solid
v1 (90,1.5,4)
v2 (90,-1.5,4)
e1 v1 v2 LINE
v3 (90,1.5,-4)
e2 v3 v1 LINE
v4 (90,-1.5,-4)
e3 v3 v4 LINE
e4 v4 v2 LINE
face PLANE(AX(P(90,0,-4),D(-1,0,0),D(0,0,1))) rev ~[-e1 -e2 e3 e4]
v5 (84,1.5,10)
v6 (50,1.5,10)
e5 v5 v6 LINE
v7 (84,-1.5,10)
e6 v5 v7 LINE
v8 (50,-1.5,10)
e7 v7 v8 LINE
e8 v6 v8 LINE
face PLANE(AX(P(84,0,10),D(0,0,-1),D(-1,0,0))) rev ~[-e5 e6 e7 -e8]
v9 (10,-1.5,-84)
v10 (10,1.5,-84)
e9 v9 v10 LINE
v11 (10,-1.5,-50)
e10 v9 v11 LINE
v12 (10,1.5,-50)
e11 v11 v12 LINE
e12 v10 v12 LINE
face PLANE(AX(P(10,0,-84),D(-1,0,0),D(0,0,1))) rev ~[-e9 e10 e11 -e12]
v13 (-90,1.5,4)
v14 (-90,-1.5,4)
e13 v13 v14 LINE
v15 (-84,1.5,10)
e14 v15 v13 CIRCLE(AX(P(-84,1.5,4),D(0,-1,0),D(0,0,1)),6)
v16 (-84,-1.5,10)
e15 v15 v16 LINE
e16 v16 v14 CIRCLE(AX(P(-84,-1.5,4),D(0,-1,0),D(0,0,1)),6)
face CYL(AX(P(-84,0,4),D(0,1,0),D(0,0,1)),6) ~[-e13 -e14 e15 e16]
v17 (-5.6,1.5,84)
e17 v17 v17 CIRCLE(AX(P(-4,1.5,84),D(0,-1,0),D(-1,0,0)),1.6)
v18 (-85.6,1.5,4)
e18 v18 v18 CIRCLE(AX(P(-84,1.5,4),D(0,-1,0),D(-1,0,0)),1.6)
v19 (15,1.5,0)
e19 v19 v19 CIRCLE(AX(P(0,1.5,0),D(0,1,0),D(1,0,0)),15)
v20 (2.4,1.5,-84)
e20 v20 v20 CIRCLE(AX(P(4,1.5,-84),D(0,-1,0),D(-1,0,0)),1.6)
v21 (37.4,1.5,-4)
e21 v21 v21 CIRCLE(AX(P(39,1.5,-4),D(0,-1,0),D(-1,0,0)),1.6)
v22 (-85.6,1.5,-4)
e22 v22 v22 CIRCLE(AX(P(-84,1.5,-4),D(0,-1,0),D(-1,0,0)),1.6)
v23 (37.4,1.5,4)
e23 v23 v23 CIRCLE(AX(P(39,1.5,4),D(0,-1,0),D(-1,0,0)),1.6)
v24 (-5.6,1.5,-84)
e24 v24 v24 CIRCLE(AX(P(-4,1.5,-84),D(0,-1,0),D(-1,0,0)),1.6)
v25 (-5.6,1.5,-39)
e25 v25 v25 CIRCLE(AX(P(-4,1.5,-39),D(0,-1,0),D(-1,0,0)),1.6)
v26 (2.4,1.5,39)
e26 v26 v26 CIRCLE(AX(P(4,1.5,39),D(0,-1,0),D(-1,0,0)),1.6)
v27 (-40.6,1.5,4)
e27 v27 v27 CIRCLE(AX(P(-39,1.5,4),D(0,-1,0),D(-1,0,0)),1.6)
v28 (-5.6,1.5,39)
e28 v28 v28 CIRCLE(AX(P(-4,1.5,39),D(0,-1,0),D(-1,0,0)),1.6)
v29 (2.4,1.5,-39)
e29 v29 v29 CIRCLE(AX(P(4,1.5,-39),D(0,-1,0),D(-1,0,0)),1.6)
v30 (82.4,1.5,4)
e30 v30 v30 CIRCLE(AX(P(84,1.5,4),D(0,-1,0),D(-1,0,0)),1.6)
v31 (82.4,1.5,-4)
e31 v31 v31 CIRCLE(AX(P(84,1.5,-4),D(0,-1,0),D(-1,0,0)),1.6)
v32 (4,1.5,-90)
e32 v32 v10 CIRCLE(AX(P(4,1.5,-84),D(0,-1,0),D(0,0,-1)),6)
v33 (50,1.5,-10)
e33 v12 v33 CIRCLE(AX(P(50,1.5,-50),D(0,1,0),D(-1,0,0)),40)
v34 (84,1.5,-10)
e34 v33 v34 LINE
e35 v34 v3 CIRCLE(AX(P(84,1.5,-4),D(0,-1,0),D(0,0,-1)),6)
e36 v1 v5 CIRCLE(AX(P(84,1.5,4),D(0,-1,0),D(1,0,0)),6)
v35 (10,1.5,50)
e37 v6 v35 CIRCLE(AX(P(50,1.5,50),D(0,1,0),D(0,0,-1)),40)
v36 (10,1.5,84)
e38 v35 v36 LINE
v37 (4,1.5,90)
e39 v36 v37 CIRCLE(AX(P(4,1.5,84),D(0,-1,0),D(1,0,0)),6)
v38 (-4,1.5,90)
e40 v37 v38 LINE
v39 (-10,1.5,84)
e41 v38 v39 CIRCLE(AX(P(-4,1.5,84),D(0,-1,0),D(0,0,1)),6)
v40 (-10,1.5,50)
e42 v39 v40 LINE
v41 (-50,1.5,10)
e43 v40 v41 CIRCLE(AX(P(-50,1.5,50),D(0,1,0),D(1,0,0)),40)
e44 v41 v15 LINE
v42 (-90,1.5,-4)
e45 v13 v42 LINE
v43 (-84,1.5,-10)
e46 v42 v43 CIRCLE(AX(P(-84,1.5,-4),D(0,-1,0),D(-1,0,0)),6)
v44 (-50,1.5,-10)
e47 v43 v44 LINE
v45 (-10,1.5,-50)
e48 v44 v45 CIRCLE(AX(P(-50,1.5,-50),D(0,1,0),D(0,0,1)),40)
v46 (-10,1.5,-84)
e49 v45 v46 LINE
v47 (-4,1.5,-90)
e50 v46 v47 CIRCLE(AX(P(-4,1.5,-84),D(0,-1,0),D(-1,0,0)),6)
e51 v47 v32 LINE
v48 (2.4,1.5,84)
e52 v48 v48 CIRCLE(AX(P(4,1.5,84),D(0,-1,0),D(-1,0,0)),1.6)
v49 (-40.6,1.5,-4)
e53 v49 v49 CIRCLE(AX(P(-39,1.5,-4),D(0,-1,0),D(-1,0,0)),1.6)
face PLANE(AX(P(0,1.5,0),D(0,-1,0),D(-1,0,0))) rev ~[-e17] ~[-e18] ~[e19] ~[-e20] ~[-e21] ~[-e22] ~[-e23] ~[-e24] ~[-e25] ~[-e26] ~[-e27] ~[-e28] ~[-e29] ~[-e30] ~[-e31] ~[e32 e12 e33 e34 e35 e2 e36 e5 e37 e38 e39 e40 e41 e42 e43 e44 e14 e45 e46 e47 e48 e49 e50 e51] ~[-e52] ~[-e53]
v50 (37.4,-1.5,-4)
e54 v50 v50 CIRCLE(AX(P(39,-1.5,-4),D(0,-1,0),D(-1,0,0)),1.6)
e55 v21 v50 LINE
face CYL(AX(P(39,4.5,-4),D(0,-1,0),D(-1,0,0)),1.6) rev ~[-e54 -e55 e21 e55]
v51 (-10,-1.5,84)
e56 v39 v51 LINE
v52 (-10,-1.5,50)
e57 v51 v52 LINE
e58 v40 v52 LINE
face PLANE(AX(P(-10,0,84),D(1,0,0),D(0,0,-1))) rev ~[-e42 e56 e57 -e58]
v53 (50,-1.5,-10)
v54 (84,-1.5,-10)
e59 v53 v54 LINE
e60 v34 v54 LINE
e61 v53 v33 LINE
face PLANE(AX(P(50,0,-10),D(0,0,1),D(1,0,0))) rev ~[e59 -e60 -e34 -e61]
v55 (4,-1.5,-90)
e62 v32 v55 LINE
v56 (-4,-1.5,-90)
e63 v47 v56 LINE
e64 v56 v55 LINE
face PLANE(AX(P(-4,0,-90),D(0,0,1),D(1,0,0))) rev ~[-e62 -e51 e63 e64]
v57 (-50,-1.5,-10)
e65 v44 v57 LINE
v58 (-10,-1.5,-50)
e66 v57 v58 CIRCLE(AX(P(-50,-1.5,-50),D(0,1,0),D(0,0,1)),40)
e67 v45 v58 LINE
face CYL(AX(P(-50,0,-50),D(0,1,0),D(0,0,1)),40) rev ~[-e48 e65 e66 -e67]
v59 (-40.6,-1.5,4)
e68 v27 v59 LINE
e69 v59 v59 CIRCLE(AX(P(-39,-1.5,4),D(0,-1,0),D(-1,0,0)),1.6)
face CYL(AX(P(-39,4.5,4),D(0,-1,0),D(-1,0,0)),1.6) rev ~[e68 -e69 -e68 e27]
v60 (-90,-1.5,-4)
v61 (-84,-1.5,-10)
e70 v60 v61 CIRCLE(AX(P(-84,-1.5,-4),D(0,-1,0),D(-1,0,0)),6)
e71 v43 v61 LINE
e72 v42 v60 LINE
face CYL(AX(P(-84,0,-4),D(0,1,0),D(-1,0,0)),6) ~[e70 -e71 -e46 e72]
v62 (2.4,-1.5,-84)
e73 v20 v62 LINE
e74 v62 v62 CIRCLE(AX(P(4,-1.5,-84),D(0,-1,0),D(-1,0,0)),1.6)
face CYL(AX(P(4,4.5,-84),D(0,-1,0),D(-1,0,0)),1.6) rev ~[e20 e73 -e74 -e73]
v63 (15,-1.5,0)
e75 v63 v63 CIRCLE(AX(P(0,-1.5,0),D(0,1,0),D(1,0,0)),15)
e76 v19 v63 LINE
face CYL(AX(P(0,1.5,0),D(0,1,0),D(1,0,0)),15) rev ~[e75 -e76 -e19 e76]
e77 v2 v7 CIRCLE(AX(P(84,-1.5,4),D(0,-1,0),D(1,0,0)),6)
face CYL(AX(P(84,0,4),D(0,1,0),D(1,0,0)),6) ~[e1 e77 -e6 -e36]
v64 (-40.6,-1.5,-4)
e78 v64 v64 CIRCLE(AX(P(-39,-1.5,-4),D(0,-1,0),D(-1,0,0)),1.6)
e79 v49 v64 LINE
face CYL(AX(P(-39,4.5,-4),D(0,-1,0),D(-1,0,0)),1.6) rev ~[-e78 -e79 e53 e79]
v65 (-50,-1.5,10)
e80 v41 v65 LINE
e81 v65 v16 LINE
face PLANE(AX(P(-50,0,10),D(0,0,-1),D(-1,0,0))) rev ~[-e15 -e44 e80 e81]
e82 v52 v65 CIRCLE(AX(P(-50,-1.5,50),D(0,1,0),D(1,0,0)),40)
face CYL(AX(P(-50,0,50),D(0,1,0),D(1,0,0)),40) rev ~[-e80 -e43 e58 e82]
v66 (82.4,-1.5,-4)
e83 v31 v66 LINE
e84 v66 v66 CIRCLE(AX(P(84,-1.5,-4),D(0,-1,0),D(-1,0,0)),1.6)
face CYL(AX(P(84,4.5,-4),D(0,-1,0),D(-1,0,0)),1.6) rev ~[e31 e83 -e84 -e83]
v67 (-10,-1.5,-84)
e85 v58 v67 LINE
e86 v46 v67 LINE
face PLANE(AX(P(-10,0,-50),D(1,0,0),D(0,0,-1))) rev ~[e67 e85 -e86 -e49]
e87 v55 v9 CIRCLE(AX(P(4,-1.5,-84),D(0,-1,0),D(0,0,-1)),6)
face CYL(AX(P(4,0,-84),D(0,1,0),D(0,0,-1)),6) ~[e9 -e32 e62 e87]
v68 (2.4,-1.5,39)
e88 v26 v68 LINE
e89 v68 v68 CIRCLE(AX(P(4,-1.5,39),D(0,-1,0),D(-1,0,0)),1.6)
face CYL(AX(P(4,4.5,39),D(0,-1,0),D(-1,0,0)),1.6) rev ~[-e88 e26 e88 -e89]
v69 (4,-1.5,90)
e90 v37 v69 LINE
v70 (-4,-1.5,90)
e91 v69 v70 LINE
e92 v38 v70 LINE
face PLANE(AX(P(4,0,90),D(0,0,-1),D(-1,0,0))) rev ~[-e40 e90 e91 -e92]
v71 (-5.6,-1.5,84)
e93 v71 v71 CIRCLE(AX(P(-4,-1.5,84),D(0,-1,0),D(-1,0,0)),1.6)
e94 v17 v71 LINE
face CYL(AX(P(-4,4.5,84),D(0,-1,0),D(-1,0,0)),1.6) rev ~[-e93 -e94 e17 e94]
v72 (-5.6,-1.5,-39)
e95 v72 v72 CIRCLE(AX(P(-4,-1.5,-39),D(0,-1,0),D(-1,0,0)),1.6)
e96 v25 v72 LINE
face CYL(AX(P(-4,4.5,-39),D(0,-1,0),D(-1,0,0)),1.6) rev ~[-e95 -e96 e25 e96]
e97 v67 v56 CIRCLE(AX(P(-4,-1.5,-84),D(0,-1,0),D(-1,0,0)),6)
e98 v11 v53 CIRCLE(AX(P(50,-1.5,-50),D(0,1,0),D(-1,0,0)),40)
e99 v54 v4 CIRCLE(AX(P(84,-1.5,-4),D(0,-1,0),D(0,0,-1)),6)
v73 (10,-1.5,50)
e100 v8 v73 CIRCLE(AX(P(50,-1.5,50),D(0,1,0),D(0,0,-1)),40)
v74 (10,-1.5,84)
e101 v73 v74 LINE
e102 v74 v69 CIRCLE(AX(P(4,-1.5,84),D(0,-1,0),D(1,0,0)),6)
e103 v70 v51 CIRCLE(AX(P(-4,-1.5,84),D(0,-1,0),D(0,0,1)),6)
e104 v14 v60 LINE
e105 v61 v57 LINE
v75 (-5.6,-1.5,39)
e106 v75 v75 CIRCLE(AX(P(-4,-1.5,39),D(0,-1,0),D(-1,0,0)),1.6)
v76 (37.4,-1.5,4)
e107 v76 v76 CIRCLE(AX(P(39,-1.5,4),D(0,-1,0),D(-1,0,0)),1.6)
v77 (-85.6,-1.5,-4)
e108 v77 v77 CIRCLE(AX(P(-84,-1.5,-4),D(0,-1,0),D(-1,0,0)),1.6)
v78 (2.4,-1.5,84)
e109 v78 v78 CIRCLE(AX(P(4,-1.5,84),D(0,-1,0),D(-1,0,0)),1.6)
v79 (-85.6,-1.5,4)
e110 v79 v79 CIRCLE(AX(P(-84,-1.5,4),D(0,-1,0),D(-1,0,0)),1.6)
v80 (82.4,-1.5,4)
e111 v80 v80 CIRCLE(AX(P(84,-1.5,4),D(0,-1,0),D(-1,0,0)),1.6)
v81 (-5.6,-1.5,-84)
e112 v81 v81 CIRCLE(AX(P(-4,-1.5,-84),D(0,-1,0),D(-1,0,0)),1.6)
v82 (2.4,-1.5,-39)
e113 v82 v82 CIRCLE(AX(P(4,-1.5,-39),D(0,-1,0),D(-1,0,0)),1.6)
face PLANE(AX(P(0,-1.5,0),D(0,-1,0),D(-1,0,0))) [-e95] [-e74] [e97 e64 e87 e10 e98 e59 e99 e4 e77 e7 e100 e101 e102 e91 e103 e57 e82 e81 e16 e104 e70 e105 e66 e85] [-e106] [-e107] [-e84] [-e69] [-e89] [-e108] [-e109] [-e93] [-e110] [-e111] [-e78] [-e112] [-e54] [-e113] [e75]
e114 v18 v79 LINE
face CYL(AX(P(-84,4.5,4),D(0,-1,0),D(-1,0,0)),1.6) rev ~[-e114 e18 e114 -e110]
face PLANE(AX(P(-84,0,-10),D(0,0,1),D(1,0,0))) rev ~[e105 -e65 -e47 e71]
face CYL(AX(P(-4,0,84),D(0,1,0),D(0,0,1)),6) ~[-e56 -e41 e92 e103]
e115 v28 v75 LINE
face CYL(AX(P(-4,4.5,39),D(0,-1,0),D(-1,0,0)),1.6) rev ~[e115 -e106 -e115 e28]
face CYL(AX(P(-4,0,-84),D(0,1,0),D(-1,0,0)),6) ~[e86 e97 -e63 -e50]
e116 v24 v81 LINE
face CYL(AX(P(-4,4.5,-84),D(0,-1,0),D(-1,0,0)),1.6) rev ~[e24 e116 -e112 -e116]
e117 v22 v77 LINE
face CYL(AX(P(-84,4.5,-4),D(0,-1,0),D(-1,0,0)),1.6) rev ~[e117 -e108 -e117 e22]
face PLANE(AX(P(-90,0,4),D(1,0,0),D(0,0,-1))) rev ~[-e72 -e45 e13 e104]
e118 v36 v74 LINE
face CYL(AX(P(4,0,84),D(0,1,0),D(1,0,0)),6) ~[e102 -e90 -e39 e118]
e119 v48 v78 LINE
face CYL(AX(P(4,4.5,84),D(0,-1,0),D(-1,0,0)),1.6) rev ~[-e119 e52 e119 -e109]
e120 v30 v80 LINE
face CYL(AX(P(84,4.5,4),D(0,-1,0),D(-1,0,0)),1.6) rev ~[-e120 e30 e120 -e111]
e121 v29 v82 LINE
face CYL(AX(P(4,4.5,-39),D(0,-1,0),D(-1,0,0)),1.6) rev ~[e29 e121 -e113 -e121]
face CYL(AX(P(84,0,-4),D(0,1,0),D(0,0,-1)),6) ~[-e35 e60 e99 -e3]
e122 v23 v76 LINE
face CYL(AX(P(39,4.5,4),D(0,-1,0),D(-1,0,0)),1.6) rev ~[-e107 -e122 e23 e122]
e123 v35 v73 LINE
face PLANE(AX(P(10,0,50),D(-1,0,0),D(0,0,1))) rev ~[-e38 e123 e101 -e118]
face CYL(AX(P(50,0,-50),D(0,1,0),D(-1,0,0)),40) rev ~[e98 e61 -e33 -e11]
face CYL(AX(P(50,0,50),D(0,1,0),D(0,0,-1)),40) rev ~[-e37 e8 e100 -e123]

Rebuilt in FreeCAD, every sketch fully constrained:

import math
import FreeCAD as App
import Part
import Sketcher

doc = App.newDocument("Part")
body = doc.addObject("PartDesign::Body", "Body")

sketch1 = doc.addObject("Sketcher::SketchObject", "Sketch")
body.addObject(sketch1)
sketch1.AttachmentSupport = (doc.XZ_Plane, [""])
sketch1.MapMode = "FlatFace"
sketch1.addGeometry([
    Part.LineSegment(App.Vector(84, -10, 0), App.Vector(50, -10, 0)),
    Part.ArcOfCircle(Part.Circle(App.Vector(50, -50, 0), App.Vector(0, 0, 1), 40), math.radians(90), math.radians(180)),
    Part.LineSegment(App.Vector(10, -50, 0), App.Vector(10, -84, 0)),
    Part.ArcOfCircle(Part.Circle(App.Vector(4, -84, 0), App.Vector(0, 0, 1), 6), math.radians(-90), math.radians(0)),
    Part.LineSegment(App.Vector(4, -90, 0), App.Vector(-4, -90, 0)),
    Part.ArcOfCircle(Part.Circle(App.Vector(-4, -84, 0), App.Vector(0, 0, 1), 6), math.radians(180), math.radians(270)),
    Part.LineSegment(App.Vector(-10, -84, 0), App.Vector(-10, -50, 0)),
    Part.ArcOfCircle(Part.Circle(App.Vector(-50, -50, 0), App.Vector(0, 0, 1), 40), math.radians(0), math.radians(90)),
    Part.LineSegment(App.Vector(-50, -10, 0), App.Vector(-84, -10, 0)),
    Part.ArcOfCircle(Part.Circle(App.Vector(-84, -4, 0), App.Vector(0, 0, 1), 6), math.radians(180), math.radians(270)),
    Part.LineSegment(App.Vector(-90, -4, 0), App.Vector(-90, 4, 0)),
    Part.ArcOfCircle(Part.Circle(App.Vector(-84, 4, 0), App.Vector(0, 0, 1), 6), math.radians(90), math.radians(180)),
    Part.LineSegment(App.Vector(-84, 10, 0), App.Vector(-50, 10, 0)),
    Part.ArcOfCircle(Part.Circle(App.Vector(-50, 50, 0), App.Vector(0, 0, 1), 40), math.radians(-90), math.radians(0)),
    Part.LineSegment(App.Vector(-10, 50, 0), App.Vector(-10, 84, 0)),
    Part.ArcOfCircle(Part.Circle(App.Vector(-4, 84, 0), App.Vector(0, 0, 1), 6), math.radians(90), math.radians(180)),
    Part.LineSegment(App.Vector(-4, 90, 0), App.Vector(4, 90, 0)),
    Part.ArcOfCircle(Part.Circle(App.Vector(4, 84, 0), App.Vector(0, 0, 1), 6), math.radians(0), math.radians(90)),
    Part.LineSegment(App.Vector(10, 84, 0), App.Vector(10, 50, 0)),
    Part.ArcOfCircle(Part.Circle(App.Vector(50, 50, 0), App.Vector(0, 0, 1), 40), math.radians(-180), math.radians(-90)),
    Part.LineSegment(App.Vector(50, 10, 0), App.Vector(84, 10, 0)),
    Part.ArcOfCircle(Part.Circle(App.Vector(84, 4, 0), App.Vector(0, 0, 1), 6), math.radians(0), math.radians(90)),
    Part.LineSegment(App.Vector(90, 4, 0), App.Vector(90, -4, 0)),
    Part.ArcOfCircle(Part.Circle(App.Vector(84, -4, 0), App.Vector(0, 0, 1), 6), math.radians(-90), math.radians(0)),
], False)
sketch1.addConstraint([
    Sketcher.Constraint("Tangent", 0, 2, 1, 1),
    Sketcher.Constraint("Tangent", 1, 2, 2, 1),
    Sketcher.Constraint("Tangent", 2, 2, 3, 2),
    Sketcher.Constraint("Tangent", 3, 1, 4, 1),
    Sketcher.Constraint("Tangent", 4, 2, 5, 2),
    Sketcher.Constraint("Tangent", 5, 1, 6, 1),
    Sketcher.Constraint("Tangent", 6, 2, 7, 1),
    Sketcher.Constraint("Tangent", 7, 2, 8, 1),
    Sketcher.Constraint("Tangent", 8, 2, 9, 2),
    Sketcher.Constraint("Tangent", 9, 1, 10, 1),
    Sketcher.Constraint("Tangent", 10, 2, 11, 2),
    Sketcher.Constraint("Tangent", 11, 1, 12, 1),
    Sketcher.Constraint("Tangent", 12, 2, 13, 1),
    Sketcher.Constraint("Tangent", 13, 2, 14, 1),
    Sketcher.Constraint("Tangent", 14, 2, 15, 2),
    Sketcher.Constraint("Tangent", 15, 1, 16, 1),
    Sketcher.Constraint("Tangent", 16, 2, 17, 2),
    Sketcher.Constraint("Tangent", 17, 1, 18, 1),
    Sketcher.Constraint("Tangent", 18, 2, 19, 1),
    Sketcher.Constraint("Tangent", 19, 2, 20, 1),
    Sketcher.Constraint("Tangent", 20, 2, 21, 2),
    Sketcher.Constraint("Tangent", 21, 1, 22, 1),
    Sketcher.Constraint("Tangent", 22, 2, 23, 2),
    Sketcher.Constraint("Tangent", 23, 1, 0, 1),
    Sketcher.Constraint("Horizontal", 0),
    Sketcher.Constraint("Vertical", 2),
    Sketcher.Constraint("Horizontal", 4),
    Sketcher.Constraint("Vertical", 6),
    Sketcher.Constraint("Horizontal", 8),
    Sketcher.Constraint("Vertical", 10),
    Sketcher.Constraint("Horizontal", 12),
    Sketcher.Constraint("Vertical", 14),
    Sketcher.Constraint("Horizontal", 16),
    Sketcher.Constraint("Vertical", 18),
    Sketcher.Constraint("Horizontal", 20),
    Sketcher.Constraint("Vertical", 22),
    Sketcher.Constraint("Equal", 3, 5),
    Sketcher.Constraint("Equal", 1, 7),
    Sketcher.Constraint("Equal", 5, 9),
    Sketcher.Constraint("Equal", 9, 11),
    Sketcher.Constraint("Equal", 7, 13),
    Sketcher.Constraint("Equal", 11, 15),
    Sketcher.Constraint("Equal", 15, 17),
    Sketcher.Constraint("Equal", 13, 19),
    Sketcher.Constraint("Equal", 17, 21),
    Sketcher.Constraint("Equal", 21, 23),
    Sketcher.Constraint("Symmetric", 1, 3, 13, 3, -1, 1),
    Sketcher.Constraint("Symmetric", 5, 3, 17, 3, -1, 1),
    Sketcher.Constraint("Symmetric", 9, 3, 21, 3, -1, 1),
    Sketcher.Constraint("Symmetric", 1, 3, 7, 3, -2),
    Sketcher.Constraint("Equal", 20, 2),
    Sketcher.Constraint("Equal", 16, 10),
    Sketcher.Constraint("Radius", 1, 40.0),
    Sketcher.Constraint("Radius", 3, 6.0),
    Sketcher.Constraint("DistanceX", 0, 2, 0, 1, 34.0),
    Sketcher.Constraint("DistanceX", 4, 2, 4, 1, 8.0),
])
pad1 = doc.addObject("PartDesign::Pad", "Pad")
body.addObject(pad1)
pad1.Profile = sketch1
pad1.Length = 3
pad1.Midplane = True

sketch2 = doc.addObject("Sketcher::SketchObject", "Sketch001")
body.addObject(sketch2)
sketch2.AttachmentSupport = (doc.XZ_Plane, [""])
sketch2.MapMode = "FlatFace"
sketch2.AttachmentOffset = App.Placement(App.Vector(0, 0, -1.5), App.Rotation())
sketch2.addGeometry([
    Part.Circle(App.Vector(-84, -4, 0), App.Vector(0, 0, 1), 1.6),
    Part.Circle(App.Vector(-84, 4, 0), App.Vector(0, 0, 1), 1.6),
    Part.Circle(App.Vector(-4, -84, 0), App.Vector(0, 0, 1), 1.6),
    Part.Circle(App.Vector(4, -84, 0), App.Vector(0, 0, 1), 1.6),
    Part.Circle(App.Vector(84, -4, 0), App.Vector(0, 0, 1), 1.6),
    Part.Circle(App.Vector(84, 4, 0), App.Vector(0, 0, 1), 1.6),
    Part.Circle(App.Vector(4, 84, 0), App.Vector(0, 0, 1), 1.6),
    Part.Circle(App.Vector(-4, 84, 0), App.Vector(0, 0, 1), 1.6),
    Part.Circle(App.Vector(-39, -4, 0), App.Vector(0, 0, 1), 1.6),
    Part.Circle(App.Vector(-39, 4, 0), App.Vector(0, 0, 1), 1.6),
    Part.Circle(App.Vector(39, -4, 0), App.Vector(0, 0, 1), 1.6),
    Part.Circle(App.Vector(39, 4, 0), App.Vector(0, 0, 1), 1.6),
    Part.Circle(App.Vector(4, 39, 0), App.Vector(0, 0, 1), 1.6),
    Part.Circle(App.Vector(-4, 39, 0), App.Vector(0, 0, 1), 1.6),
    Part.Circle(App.Vector(-4, -39, 0), App.Vector(0, 0, 1), 1.6),
    Part.Circle(App.Vector(4, -39, 0), App.Vector(0, 0, 1), 1.6),
], False)
sketch2.addConstraint([
    Sketcher.Constraint("Equal", 0, 1),
    Sketcher.Constraint("Equal", 1, 2),
    Sketcher.Constraint("Equal", 2, 3),
    Sketcher.Constraint("Equal", 3, 4),
    Sketcher.Constraint("Equal", 4, 5),
    Sketcher.Constraint("Equal", 5, 6),
    Sketcher.Constraint("Equal", 6, 7),
    Sketcher.Constraint("Equal", 7, 8),
    Sketcher.Constraint("Equal", 8, 9),
    Sketcher.Constraint("Equal", 9, 10),
    Sketcher.Constraint("Equal", 10, 11),
    Sketcher.Constraint("Equal", 11, 12),
    Sketcher.Constraint("Equal", 12, 13),
    Sketcher.Constraint("Equal", 13, 14),
    Sketcher.Constraint("Equal", 14, 15),
    Sketcher.Constraint("Symmetric", 1, 3, 4, 3, -1, 1),
    Sketcher.Constraint("Symmetric", 0, 3, 5, 3, -1, 1),
    Sketcher.Constraint("Symmetric", 2, 3, 6, 3, -1, 1),
    Sketcher.Constraint("Symmetric", 3, 3, 7, 3, -1, 1),
    Sketcher.Constraint("Symmetric", 9, 3, 10, 3, -1, 1),
    Sketcher.Constraint("Symmetric", 8, 3, 11, 3, -1, 1),
    Sketcher.Constraint("Symmetric", 12, 3, 14, 3, -1, 1),
    Sketcher.Constraint("Symmetric", 13, 3, 15, 3, -1, 1),
    Sketcher.Constraint("Symmetric", 2, 3, 3, 3, -2),
    Sketcher.Constraint("Symmetric", 0, 3, 4, 3, -2),
    Sketcher.Constraint("Symmetric", 8, 3, 10, 3, -2),
    Sketcher.Constraint("Symmetric", 12, 3, 13, 3, -2),
    Sketcher.Constraint("Horizontal", 4, 3, 8, 3),
    Sketcher.Constraint("Vertical", 6, 3, 12, 3),
    Sketcher.Constraint("Diameter", 0, 3.2),
    Sketcher.Constraint("DistanceX", 0, 3, -1, 1, 84.0),
    Sketcher.Constraint("DistanceY", 0, 3, -1, 1, 4.0),
    Sketcher.Constraint("DistanceX", 2, 3, -1, 1, 4.0),
    Sketcher.Constraint("DistanceY", 2, 3, -1, 1, 84.0),
    Sketcher.Constraint("DistanceX", 8, 3, -1, 1, 39.0),
    Sketcher.Constraint("DistanceY", -1, 1, 12, 3, 39.0),
])
doc.recompute()
hole = doc.addObject("PartDesign::Hole", "Hole")
body.addObject(hole)
hole.Profile = sketch2
hole.ThreadType = "None"
hole.Diameter = 3.2
hole.DepthType = "Dimension"
hole.Depth = 3
hole.DrillPoint = "Flat"
hole.Reversed = True

sketch3 = doc.addObject("Sketcher::SketchObject", "Sketch002")
body.addObject(sketch3)
sketch3.AttachmentSupport = (doc.XZ_Plane, [""])
sketch3.MapMode = "FlatFace"
sketch3.AttachmentOffset = App.Placement(App.Vector(0, 0, -1.5), App.Rotation())
sketch3.addGeometry(Part.Circle(App.Vector(0, 0, 0), App.Vector(0, 0, 1), 15), False)
sketch3.addConstraint([
    Sketcher.Constraint("Coincident", 0, 3, -1, 1),
    Sketcher.Constraint("Diameter", 0, 30.0),
])
pocket1 = doc.addObject("PartDesign::Pocket", "Pocket")
body.addObject(pocket1)
pocket1.Profile = sketch3
pocket1.Type = "ThroughAll"
pocket1.Midplane = True

doc.recompute()
